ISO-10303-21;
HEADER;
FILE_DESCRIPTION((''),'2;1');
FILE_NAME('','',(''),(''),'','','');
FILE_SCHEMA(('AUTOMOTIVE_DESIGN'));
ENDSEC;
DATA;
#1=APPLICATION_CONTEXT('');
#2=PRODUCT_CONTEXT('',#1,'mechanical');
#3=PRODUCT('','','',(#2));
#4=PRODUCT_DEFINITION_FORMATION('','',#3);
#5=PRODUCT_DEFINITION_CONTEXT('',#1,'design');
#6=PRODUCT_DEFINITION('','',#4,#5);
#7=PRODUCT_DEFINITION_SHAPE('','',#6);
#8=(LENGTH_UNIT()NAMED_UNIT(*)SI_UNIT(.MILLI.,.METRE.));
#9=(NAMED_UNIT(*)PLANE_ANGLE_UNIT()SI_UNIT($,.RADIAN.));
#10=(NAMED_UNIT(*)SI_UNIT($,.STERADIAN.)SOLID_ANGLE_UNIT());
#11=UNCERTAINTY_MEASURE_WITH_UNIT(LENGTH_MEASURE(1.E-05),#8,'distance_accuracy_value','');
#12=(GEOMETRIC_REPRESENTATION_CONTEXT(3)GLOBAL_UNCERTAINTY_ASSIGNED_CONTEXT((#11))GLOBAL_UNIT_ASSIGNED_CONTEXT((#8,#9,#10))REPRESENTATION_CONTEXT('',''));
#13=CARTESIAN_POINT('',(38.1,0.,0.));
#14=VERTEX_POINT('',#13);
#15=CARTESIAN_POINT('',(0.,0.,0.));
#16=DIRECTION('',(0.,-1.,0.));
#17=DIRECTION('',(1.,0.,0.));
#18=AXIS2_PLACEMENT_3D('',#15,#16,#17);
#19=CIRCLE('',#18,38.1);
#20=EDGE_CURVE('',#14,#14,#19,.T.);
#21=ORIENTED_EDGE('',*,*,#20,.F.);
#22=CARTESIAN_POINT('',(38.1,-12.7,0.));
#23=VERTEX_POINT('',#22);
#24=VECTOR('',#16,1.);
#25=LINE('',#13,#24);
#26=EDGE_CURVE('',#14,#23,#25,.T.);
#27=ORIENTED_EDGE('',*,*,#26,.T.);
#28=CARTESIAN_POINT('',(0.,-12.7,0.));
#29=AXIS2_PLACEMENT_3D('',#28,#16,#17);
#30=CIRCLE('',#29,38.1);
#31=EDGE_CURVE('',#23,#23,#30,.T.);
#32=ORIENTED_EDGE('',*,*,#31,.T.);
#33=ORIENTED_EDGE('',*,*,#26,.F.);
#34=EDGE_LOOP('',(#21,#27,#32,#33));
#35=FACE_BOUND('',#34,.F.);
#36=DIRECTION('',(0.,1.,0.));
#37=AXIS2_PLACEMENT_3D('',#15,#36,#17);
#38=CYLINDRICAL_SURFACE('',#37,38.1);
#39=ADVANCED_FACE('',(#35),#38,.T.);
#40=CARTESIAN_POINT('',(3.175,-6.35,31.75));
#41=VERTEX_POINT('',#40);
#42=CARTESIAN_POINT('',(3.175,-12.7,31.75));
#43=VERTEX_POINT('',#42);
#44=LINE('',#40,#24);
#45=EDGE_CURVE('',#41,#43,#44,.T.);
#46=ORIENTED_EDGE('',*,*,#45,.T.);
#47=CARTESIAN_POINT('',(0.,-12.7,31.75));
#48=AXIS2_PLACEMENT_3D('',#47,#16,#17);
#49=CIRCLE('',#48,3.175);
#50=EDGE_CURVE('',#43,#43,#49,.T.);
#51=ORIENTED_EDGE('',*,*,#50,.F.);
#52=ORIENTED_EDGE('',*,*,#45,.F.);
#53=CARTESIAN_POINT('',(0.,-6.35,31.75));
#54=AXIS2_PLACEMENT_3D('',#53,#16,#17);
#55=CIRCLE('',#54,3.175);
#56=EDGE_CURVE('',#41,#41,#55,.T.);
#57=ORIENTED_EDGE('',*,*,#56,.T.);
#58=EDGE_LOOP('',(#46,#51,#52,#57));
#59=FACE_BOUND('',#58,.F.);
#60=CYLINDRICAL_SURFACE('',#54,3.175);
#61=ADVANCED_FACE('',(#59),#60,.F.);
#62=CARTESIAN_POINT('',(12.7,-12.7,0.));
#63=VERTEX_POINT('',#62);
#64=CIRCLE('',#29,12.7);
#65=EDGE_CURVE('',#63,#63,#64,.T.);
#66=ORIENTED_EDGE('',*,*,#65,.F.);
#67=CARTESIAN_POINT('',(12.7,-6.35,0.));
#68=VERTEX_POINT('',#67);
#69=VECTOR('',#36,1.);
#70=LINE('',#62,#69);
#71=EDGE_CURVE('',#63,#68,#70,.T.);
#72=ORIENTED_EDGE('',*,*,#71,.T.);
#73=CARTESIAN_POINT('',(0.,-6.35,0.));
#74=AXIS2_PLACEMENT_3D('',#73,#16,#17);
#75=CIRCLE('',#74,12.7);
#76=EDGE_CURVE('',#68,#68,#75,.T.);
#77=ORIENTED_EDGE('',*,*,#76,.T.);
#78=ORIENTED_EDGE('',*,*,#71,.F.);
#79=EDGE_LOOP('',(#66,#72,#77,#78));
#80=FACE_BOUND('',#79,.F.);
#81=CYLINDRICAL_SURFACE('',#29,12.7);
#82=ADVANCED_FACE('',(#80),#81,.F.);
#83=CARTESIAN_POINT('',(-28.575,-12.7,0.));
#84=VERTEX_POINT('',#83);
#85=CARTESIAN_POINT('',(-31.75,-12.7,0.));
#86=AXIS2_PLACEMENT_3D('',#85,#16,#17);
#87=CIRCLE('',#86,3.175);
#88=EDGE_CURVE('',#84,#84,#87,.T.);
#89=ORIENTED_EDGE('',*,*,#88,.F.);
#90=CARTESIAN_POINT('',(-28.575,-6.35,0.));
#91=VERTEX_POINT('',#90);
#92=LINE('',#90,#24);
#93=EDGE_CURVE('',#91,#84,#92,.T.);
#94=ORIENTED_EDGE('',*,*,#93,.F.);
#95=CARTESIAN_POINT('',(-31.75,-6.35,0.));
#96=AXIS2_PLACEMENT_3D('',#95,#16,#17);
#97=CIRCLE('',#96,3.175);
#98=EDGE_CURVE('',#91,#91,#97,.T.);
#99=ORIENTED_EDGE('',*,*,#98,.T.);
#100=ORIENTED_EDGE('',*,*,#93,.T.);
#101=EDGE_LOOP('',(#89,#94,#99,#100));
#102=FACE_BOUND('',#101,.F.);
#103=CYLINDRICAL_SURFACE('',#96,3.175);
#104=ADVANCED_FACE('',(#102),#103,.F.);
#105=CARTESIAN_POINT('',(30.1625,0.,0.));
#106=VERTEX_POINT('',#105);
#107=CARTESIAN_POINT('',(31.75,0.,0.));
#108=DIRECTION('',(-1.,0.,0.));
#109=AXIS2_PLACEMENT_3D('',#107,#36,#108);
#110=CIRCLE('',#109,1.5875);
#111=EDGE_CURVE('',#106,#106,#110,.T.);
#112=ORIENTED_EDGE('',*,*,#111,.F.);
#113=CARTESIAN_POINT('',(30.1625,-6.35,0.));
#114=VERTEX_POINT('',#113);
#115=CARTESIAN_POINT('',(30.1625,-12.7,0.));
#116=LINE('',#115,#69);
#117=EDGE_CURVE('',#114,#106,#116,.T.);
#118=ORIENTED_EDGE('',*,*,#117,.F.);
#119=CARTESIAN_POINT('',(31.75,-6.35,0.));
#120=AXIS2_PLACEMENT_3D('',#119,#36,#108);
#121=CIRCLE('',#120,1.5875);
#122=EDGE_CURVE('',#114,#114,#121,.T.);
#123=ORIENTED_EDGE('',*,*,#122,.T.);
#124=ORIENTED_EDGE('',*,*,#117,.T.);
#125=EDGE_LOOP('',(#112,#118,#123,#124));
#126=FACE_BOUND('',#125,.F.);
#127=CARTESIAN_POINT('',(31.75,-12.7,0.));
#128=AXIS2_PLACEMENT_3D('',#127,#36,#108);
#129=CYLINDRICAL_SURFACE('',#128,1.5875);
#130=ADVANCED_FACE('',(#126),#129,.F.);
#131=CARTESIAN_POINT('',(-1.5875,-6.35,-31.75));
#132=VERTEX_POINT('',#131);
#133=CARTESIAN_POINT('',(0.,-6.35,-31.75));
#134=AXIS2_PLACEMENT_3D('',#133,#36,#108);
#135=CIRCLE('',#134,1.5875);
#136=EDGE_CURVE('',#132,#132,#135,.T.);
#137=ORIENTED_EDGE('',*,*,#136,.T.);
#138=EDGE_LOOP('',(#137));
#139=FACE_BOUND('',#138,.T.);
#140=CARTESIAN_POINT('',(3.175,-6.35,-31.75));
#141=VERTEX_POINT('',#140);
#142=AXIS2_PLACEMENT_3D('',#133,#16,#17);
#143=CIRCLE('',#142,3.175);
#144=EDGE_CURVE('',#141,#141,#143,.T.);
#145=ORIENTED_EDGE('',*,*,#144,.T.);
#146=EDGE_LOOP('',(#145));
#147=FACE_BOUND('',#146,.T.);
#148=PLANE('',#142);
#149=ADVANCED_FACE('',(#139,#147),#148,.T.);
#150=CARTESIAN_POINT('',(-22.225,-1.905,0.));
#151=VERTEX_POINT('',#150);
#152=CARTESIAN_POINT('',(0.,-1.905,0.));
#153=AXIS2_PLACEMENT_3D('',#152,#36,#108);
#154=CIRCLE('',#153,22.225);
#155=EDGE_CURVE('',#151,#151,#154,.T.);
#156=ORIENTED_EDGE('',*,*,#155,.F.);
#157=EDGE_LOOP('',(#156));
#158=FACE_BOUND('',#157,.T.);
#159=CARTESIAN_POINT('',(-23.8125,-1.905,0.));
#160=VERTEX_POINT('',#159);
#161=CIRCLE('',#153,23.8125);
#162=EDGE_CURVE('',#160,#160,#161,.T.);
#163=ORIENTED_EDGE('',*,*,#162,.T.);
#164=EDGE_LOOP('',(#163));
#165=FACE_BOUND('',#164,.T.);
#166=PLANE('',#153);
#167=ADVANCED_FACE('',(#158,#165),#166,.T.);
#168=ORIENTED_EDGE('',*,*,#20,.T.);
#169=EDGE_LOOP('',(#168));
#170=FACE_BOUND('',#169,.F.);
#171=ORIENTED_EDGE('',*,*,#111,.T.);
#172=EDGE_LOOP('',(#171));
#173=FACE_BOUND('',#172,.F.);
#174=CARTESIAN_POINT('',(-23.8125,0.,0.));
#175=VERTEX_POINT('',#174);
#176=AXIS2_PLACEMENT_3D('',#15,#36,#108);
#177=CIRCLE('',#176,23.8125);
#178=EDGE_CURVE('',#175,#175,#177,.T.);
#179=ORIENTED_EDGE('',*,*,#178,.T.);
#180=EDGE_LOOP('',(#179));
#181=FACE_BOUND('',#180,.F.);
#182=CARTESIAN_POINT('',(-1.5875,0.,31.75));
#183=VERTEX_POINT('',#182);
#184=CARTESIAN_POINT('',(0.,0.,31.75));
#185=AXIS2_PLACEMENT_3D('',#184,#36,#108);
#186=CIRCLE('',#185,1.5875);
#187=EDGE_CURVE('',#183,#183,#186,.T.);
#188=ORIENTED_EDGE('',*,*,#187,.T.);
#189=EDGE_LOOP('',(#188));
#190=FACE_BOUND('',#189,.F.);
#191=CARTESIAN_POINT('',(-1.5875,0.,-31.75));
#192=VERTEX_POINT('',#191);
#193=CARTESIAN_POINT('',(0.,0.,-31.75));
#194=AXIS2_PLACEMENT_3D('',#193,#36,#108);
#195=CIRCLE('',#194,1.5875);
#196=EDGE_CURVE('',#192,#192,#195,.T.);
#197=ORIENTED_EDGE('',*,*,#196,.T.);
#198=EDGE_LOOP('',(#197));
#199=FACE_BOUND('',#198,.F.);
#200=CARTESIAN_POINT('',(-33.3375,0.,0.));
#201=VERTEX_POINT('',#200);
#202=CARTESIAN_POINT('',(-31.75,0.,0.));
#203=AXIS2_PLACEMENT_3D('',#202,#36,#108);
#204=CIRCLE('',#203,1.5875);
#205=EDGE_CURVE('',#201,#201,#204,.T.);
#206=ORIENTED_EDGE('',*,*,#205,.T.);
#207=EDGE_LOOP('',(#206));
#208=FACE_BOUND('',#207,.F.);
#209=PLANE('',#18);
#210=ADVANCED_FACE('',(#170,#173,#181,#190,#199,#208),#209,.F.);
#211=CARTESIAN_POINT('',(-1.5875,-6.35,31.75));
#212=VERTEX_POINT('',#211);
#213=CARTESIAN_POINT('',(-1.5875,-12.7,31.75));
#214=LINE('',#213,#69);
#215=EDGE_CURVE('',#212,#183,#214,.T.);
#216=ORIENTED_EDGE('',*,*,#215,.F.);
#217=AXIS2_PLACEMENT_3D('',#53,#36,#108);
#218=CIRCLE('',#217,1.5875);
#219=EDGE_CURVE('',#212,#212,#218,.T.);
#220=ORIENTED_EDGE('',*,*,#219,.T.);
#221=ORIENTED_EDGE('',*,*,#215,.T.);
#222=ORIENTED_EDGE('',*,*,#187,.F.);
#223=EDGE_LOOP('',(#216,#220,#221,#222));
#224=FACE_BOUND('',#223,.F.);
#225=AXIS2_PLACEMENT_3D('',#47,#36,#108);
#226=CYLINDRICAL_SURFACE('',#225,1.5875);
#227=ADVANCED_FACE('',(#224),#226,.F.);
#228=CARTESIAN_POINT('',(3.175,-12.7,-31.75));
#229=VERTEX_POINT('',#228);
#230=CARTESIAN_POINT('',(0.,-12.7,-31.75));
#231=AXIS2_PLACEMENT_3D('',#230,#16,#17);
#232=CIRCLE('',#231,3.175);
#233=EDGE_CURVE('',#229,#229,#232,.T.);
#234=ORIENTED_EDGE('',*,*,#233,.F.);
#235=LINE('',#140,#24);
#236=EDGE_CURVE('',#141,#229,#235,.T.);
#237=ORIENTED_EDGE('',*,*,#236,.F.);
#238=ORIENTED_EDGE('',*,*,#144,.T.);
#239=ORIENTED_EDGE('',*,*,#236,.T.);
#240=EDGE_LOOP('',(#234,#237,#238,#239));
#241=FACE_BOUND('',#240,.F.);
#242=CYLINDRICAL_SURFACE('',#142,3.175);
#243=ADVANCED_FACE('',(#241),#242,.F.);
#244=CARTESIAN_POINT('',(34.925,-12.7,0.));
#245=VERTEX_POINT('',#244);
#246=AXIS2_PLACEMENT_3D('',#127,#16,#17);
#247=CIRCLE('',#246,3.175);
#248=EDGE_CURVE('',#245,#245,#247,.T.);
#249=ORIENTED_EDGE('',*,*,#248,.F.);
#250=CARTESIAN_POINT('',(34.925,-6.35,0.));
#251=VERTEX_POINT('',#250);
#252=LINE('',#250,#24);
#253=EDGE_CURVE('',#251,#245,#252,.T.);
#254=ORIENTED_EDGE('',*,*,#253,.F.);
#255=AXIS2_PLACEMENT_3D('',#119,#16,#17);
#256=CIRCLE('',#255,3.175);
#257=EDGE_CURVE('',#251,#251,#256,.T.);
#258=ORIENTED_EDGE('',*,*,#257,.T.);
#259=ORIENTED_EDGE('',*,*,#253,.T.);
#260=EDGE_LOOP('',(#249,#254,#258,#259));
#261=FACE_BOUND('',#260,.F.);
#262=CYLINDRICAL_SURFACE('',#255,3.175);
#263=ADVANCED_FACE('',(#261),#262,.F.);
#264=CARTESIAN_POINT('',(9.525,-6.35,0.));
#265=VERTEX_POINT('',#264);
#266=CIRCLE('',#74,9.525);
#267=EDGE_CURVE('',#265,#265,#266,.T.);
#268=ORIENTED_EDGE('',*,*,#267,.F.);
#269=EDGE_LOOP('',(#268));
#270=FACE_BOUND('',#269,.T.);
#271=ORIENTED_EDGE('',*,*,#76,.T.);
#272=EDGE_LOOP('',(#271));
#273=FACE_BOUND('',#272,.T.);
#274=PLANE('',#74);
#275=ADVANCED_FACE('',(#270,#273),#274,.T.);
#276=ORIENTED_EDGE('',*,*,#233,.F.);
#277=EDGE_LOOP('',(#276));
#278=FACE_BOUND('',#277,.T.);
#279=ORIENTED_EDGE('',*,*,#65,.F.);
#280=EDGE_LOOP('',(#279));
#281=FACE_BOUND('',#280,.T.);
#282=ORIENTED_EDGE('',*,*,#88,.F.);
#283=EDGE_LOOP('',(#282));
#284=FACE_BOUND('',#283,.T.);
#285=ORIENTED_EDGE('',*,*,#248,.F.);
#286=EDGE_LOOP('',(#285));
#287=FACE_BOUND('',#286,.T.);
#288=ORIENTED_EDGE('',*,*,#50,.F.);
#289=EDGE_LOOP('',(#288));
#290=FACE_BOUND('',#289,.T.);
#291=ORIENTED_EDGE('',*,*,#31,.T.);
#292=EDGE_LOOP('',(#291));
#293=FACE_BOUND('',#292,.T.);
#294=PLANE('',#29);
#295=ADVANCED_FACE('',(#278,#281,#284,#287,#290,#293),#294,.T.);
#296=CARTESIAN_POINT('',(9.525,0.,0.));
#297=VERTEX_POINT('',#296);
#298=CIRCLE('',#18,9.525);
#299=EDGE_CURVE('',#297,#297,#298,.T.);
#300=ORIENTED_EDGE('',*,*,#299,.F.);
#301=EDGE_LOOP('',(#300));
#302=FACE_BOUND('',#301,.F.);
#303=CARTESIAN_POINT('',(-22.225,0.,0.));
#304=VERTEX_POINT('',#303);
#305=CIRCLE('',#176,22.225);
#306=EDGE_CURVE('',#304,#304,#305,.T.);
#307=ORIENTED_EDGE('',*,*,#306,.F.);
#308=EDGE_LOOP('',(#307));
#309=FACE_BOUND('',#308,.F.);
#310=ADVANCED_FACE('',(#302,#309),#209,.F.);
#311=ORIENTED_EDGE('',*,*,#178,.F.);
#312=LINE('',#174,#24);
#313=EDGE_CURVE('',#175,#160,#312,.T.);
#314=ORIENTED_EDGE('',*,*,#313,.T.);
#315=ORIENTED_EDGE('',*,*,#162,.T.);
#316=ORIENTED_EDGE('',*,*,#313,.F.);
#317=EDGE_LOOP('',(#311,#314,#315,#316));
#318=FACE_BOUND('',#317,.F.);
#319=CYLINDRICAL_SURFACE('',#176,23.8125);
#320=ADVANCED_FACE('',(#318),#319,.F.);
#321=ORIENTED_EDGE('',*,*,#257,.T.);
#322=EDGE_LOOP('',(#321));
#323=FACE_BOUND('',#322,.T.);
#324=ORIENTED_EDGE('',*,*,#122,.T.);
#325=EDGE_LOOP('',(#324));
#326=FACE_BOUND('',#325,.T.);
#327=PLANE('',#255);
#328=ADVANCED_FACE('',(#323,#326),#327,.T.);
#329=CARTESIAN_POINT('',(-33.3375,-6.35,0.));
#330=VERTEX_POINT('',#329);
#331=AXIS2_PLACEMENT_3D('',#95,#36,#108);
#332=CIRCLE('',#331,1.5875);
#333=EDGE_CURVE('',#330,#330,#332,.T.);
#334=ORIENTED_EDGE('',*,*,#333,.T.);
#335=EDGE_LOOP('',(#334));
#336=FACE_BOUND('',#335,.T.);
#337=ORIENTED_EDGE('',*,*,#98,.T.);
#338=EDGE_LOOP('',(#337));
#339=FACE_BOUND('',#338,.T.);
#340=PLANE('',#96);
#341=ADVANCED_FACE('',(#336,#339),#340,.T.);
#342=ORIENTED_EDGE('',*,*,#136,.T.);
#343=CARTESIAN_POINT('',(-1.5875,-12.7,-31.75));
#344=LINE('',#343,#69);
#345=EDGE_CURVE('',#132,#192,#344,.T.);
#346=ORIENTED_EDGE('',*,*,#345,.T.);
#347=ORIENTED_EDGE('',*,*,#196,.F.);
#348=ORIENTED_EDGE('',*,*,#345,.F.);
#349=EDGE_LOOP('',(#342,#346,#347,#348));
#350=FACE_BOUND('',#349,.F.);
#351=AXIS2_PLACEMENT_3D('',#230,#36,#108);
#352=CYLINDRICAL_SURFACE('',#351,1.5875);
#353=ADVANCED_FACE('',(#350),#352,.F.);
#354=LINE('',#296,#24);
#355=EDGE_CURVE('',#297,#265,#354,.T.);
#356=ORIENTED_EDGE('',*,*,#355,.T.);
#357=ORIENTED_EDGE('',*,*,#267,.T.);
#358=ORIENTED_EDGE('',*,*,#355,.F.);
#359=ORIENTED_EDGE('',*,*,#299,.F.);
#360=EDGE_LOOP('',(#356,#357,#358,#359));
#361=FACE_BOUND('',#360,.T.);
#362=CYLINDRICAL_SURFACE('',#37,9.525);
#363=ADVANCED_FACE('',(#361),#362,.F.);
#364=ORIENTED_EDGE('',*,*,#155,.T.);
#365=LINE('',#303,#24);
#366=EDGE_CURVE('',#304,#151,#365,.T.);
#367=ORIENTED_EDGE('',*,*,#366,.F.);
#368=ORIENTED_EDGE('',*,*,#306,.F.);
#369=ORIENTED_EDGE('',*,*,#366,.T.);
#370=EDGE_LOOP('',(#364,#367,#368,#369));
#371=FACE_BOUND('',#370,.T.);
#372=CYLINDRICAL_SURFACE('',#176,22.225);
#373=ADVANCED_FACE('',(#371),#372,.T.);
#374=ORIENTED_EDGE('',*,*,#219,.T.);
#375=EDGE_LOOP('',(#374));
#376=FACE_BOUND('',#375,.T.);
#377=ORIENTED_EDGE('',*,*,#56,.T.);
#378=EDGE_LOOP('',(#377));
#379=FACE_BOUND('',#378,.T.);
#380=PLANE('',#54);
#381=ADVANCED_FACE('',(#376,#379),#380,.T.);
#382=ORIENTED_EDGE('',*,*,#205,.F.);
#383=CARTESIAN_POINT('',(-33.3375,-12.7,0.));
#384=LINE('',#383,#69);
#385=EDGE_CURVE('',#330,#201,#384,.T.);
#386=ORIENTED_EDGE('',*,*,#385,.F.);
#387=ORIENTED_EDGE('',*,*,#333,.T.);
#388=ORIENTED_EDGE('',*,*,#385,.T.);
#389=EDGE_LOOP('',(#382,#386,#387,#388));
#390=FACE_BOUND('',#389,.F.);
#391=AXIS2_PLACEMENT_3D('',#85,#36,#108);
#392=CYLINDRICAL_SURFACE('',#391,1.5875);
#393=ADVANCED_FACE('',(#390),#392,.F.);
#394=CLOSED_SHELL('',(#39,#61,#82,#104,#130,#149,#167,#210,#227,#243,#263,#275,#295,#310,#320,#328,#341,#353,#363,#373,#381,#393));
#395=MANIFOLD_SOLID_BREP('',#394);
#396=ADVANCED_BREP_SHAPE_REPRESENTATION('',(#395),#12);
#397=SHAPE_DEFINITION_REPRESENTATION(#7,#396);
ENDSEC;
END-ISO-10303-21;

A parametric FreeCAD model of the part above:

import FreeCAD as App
import Part
import Sketcher
Q = App.Units.Quantity

doc = App.newDocument("Part")
body = doc.addObject("PartDesign::Body", "Body")

sketch1 = doc.addObject("Sketcher::SketchObject", "Sketch")
body.addObject(sketch1)
sketch1.AttachmentSupport = (doc.XZ_Plane, [""])
sketch1.MapMode = "FlatFace"
sketch1.addGeometry([
    Part.Circle(App.Vector(0, 0, 0), App.Vector(0, 0, 1), 38.1),
    Part.Circle(App.Vector(0, 0, 0), App.Vector(0, 0, 1), 9.525),
], False)
sketch1.addConstraint([
    Sketcher.Constraint("Coincident", 0, 3, -1, 1),
    Sketcher.Constraint("Coincident", 1, 3, -1, 1),
    Sketcher.Constraint("Diameter", 0, Q("3 in")),
    Sketcher.Constraint("Diameter", 1, Q("0.75 in")),
])
pad1 = doc.addObject("PartDesign::Pad", "Pad")
body.addObject(pad1)
pad1.Profile = sketch1
pad1.Length = Q("0.5 in")

sketch2 = doc.addObject("Sketcher::SketchObject", "Sketch001")
body.addObject(sketch2)
sketch2.AttachmentSupport = (doc.XZ_Plane, [""])
sketch2.MapMode = "FlatFace"
sketch2.AttachmentOffset = App.Placement(App.Vector(0, 0, 0.5 * 25.4), App.Rotation())
sketch2.addGeometry([
    Part.Circle(App.Vector(0, 0, 0), App.Vector(0, 0, 1), 12.7),
    Part.Circle(App.Vector(0, 0, 0), App.Vector(0, 0, 1), 9.525),
], False)
sketch2.addConstraint([
    Sketcher.Constraint("Coincident", 0, 3, -1, 1),
    Sketcher.Constraint("Coincident", 1, 3, -1, 1),
    Sketcher.Constraint("Diameter", 0, Q("1 in")),
    Sketcher.Constraint("Diameter", 1, Q("0.75 in")),
])
pocket1 = doc.addObject("PartDesign::Pocket", "Pocket")
body.addObject(pocket1)
pocket1.Profile = sketch2
pocket1.Length = Q("0.25 in")

sketch3 = doc.addObject("Sketcher::SketchObject", "Sketch002")
body.addObject(sketch3)
sketch3.AttachmentSupport = (doc.XZ_Plane, [""])
sketch3.MapMode = "FlatFace"
sketch3.AttachmentOffset = App.Placement(App.Vector(0, 0, 0.5 * 25.4), App.Rotation())
sketch3.addGeometry([
    Part.Circle(App.Vector(0, 31.75, 0), App.Vector(0, 0, 1), 1.5875),
    Part.Circle(App.Vector(31.75, 0, 0), App.Vector(0, 0, 1), 1.5875),
    Part.Circle(App.Vector(0, -31.75, 0), App.Vector(0, 0, 1), 1.5875),
    Part.Circle(App.Vector(-31.75, 0, 0), App.Vector(0, 0, 1), 1.5875),
], False)
sketch3.addConstraint([
    Sketcher.Constraint("Equal", 0, 1),
    Sketcher.Constraint("Equal", 1, 2),
    Sketcher.Constraint("Equal", 2, 3),
    Sketcher.Constraint("Symmetric", 0, 3, 2, 3, -1, 1),
    Sketcher.Constraint("Symmetric", 1, 3, 3, 3, -1, 1),
    Sketcher.Constraint("PointOnObject", 0, 3, -2),
    Sketcher.Constraint("PointOnObject", 1, 3, -1),
    Sketcher.Constraint("Diameter", 0, Q("0.125 in")),
    Sketcher.Constraint("DistanceY", 2, 3, 0, 3, Q("2.5 in")),
    Sketcher.Constraint("DistanceX", 3, 3, 1, 3, Q("2.5 in")),
])
doc.recompute()
hole = doc.addObject("PartDesign::Hole", "Hole")
body.addObject(hole)
hole.Profile = sketch3
hole.ThreadType = "None"
hole.Diameter = Q("0.125 in")
hole.DepthType = "ThroughAll"
hole.HoleCutType = "Counterbore"
hole.HoleCutDiameter = Q("0.25 in")
hole.HoleCutDepth = Q("0.25 in")

sketch4 = doc.addObject("Sketcher::SketchObject", "Sketch003")
body.addObject(sketch4)
sketch4.AttachmentSupport = (doc.XZ_Plane, [""])
sketch4.MapMode = "FlatFace"
sketch4.addGeometry([
    Part.Circle(App.Vector(0, 0, 0), App.Vector(0, 0, 1), 23.8125),
    Part.Circle(App.Vector(0, 0, 0), App.Vector(0, 0, 1), 22.225),
], False)
sketch4.addConstraint([
    Sketcher.Constraint("Coincident", 0, 3, -1, 1),
    Sketcher.Constraint("Coincident", 1, 3, -1, 1),
    Sketcher.Constraint("Diameter", 1, Q("1.75 in")),
    Sketcher.Constraint("Diameter", 0, Q("1.875 in")),
])
pocket2 = doc.addObject("PartDesign::Pocket", "Pocket001")
body.addObject(pocket2)
pocket2.Profile = sketch4
pocket2.Length = Q("0.075 in")
pocket2.Reversed = True

doc.recompute()
